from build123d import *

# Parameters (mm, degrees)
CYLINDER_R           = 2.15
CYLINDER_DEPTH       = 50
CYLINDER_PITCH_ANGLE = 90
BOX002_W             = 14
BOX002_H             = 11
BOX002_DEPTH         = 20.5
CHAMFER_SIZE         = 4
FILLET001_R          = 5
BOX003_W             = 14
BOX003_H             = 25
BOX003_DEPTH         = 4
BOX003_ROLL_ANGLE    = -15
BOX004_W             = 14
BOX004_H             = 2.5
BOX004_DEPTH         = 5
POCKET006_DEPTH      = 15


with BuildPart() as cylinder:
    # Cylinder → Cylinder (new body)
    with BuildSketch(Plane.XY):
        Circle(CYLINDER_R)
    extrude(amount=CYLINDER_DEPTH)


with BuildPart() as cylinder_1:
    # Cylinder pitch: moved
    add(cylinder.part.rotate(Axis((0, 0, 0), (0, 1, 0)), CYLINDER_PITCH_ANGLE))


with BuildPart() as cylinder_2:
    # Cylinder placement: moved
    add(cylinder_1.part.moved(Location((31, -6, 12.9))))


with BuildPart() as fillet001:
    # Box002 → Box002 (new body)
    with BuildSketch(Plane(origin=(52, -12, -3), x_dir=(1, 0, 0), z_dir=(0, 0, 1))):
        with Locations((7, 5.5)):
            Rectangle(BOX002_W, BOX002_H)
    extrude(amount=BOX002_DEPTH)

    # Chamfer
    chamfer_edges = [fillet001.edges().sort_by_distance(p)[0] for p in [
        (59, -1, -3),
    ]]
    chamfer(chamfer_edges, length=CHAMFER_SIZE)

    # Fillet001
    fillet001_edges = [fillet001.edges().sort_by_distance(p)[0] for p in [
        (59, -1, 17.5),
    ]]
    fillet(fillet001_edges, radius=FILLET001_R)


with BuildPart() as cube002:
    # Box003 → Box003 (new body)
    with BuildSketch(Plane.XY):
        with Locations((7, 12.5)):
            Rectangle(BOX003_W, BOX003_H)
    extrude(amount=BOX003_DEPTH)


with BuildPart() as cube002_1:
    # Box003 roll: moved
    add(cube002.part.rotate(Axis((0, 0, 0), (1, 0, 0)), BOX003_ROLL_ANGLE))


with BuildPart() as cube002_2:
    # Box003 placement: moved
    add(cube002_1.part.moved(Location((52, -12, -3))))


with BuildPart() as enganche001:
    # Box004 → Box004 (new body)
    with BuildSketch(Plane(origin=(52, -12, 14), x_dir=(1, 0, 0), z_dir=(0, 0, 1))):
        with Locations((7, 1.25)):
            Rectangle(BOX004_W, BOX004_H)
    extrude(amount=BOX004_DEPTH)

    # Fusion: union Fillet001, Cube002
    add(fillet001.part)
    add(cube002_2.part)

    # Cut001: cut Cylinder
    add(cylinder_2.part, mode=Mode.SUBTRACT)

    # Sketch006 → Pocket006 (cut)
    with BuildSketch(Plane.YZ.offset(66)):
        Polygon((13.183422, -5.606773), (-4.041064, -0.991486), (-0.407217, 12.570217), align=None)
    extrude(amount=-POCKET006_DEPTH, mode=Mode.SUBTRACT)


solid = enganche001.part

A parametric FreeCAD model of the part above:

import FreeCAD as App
import Part
import Sketcher
Q = App.Units.Quantity


def edges_at(feature, points):
    """Names of the edges that pass closest to the given points."""
    edges = feature.Shape.Edges
    near = lambda p: min(range(len(edges)), key=lambda i: edges[i].distToShape(Part.Vertex(*p))[0])
    return sorted({f"Edge{near(p) + 1}" for p in points})


def add_polygon(sketch, points):
    """Adds a closed chain of lines whose ends are joined by coincident constraints."""
    first, n = sketch.GeometryCount, len(points)
    for a, b in zip(points, points[1:] + points[:1]):
        sketch.addGeometry(Part.LineSegment(App.Vector(*a, 0), App.Vector(*b, 0)), False)
    for i in range(n):
        sketch.addConstraint(Sketcher.Constraint("Coincident", first + i, 2, first + (i + 1) % n, 1))

doc = App.newDocument("Part")
body = doc.addObject("PartDesign::Body", "Body")

# Sketch on XY plane
sketch1 = body.newObject("Sketcher::SketchObject", "Sketch")
sketch1.AttachmentSupport = (doc.getObject("XY_Plane"), [""])
sketch1.MapMode = "FlatFace"
sketch1.addGeometry(Part.Circle(App.Vector(0, 0, 0), App.Vector(0, 0, 1), 2.1), False)
sketch1.addConstraint(Sketcher.Constraint("Coincident", 0, 3, -1, 1))
sketch1.addConstraint(Sketcher.Constraint("Diameter", 0, 4.3))
pad1 = body.newObject("PartDesign::Pad", "Pad")
pad1.Profile = sketch1
pad1.Length = 50
body2 = doc.addObject("PartDesign::Body", "Body001")
doc.recompute()

body.Placement = App.Placement(App.Vector(0, 0, 0), App.Rotation(App.Vector(0, 1, 0), 90))
boolean = body2.newObject("PartDesign::Boolean", "Boolean")
boolean.Type = "Fuse"
boolean.addObjects([body])
body3 = doc.addObject("PartDesign::Body", "Body002")
doc.recompute()

body2.Placement = App.Placement(App.Vector(31, -6, 12.9), App.Rotation(App.Vector(0, 0, 1), 0))
boolean2 = body3.newObject("PartDesign::Boolean", "Boolean001")
boolean2.Type = "Fuse"
boolean2.addObjects([body2])
body4 = doc.addObject("PartDesign::Body", "Body003")

# Sketch on XY plane
sketch2 = body4.newObject("Sketcher::SketchObject", "Sketch001")
sketch2.AttachmentSupport = (doc.getObject("XY_Plane003"), [""])
sketch2.MapMode = "FlatFace"
sketch2.AttachmentOffset = App.Placement(App.Vector(0, 0, -3), App.Rotation())
add_polygon(sketch2, [(52, -1), (52, -12), (66, -12), (66, -1)])  # lines 0-3
sketch2.addConstraint(Sketcher.Constraint("Vertical", 0))
sketch2.addConstraint(Sketcher.Constraint("Horizontal", 1))
sketch2.addConstraint(Sketcher.Constraint("Vertical", 2))
sketch2.addConstraint(Sketcher.Constraint("Horizontal", 3))
sketch2.addConstraint(Sketcher.Constraint("DistanceX", 1, 1, 1, 2, 14.0))
sketch2.addConstraint(Sketcher.Constraint("DistanceY", 0, 2, 0, 1, 11.0))
sketch2.addConstraint(Sketcher.Constraint("DistanceX", -1, 1, 0, 2, 52.0))
sketch2.addConstraint(Sketcher.Constraint("DistanceY", 0, 2, -1, 1, 12.0))
pad2 = body4.newObject("PartDesign::Pad", "Pad001")
pad2.Profile = sketch2
pad2.Length = 20.5
doc.recompute()

chamfer = body4.newObject("PartDesign::Chamfer", "Chamfer")
chamfer.Base = (pad2, edges_at(pad2, [(59, -1, -3)]))
chamfer.Size = 4
doc.recompute()

fillet = body4.newObject("PartDesign::Fillet", "Fillet")
fillet.Base = (chamfer, edges_at(chamfer, [(59, -1, 17.5)]))
fillet.Radius = 5
body5 = doc.addObject("PartDesign::Body", "Body004")

# Sketch on XY plane
sketch3 = body5.newObject("Sketcher::SketchObject", "Sketch002")
sketch3.AttachmentSupport = (doc.getObject("XY_Plane004"), [""])
sketch3.MapMode = "FlatFace"
add_polygon(sketch3, [(0, 25), (0, 0), (14, 0), (14, 25)])  # lines 0-3
sketch3.addConstraint(Sketcher.Constraint("Vertical", 0))
sketch3.addConstraint(Sketcher.Constraint("Horizontal", 1))
sketch3.addConstraint(Sketcher.Constraint("Vertical", 2))
sketch3.addConstraint(Sketcher.Constraint("Horizontal", 3))
sketch3.addConstraint(Sketcher.Constraint("Coincident", 0, 2, -1, 1))
sketch3.addConstraint(Sketcher.Constraint("DistanceX", 1, 1, 1, 2, 14.0))
sketch3.addConstraint(Sketcher.Constraint("DistanceY", 0, 2, 0, 1, 25.0))
pad3 = body5.newObject("PartDesign::Pad", "Pad002")
pad3.Profile = sketch3
pad3.Length = 4
body6 = doc.addObject("PartDesign::Body", "Body005")
doc.recompute()

body5.Placement = App.Placement(App.Vector(0, 0, 0), App.Rotation(App.Vector(1, 0, 0), 345))
boolean3 = body6.newObject("PartDesign::Boolean", "Boolean002")
boolean3.Type = "Fuse"
boolean3.addObjects([body5])
body7 = doc.addObject("PartDesign::Body", "Body006")
doc.recompute()

body6.Placement = App.Placement(App.Vector(52, -12, -3), App.Rotation(App.Vector(0, 0, 1), 0))
boolean4 = body7.newObject("PartDesign::Boolean", "Boolean003")
boolean4.Type = "Fuse"
boolean4.addObjects([body6])
body8 = doc.addObject("PartDesign::Body", "Body007")

# Sketch on XY plane
sketch4 = body8.newObject("Sketcher::SketchObject", "Sketch003")
sketch4.AttachmentSupport = (doc.getObject("XY_Plane007"), [""])
sketch4.MapMode = "FlatFace"
sketch4.AttachmentOffset = App.Placement(App.Vector(0, 0, 14), App.Rotation())
add_polygon(sketch4, [(52, -9.5), (52, -12), (66, -12), (66, -9.5)])  # lines 0-3
sketch4.addConstraint(Sketcher.Constraint("Vertical", 0))
sketch4.addConstraint(Sketcher.Constraint("Horizontal", 1))
sketch4.addConstraint(Sketcher.Constraint("Vertical", 2))
sketch4.addConstraint(Sketcher.Constraint("Horizontal", 3))
sketch4.addConstraint(Sketcher.Constraint("DistanceX", 1, 1, 1, 2, 14.0))
sketch4.addConstraint(Sketcher.Constraint("DistanceY", 0, 2, 0, 1, 2.5))
sketch4.addConstraint(Sketcher.Constraint("DistanceX", -1, 1, 0, 2, 52.0))
sketch4.addConstraint(Sketcher.Constraint("DistanceY", 0, 2, -1, 1, 12.0))
pad4 = body8.newObject("PartDesign::Pad", "Pad003")
pad4.Profile = sketch4
pad4.Length = 5
doc.recompute()

boolean5 = body8.newObject("PartDesign::Boolean", "Boolean004")
boolean5.Type = "Fuse"
boolean5.addObjects([body4])
doc.recompute()

boolean6 = body8.newObject("PartDesign::Boolean", "Boolean005")
boolean6.Type = "Fuse"
boolean6.addObjects([body7])
doc.recompute()

boolean7 = body8.newObject("PartDesign::Boolean", "Boolean006")
boolean7.Type = "Cut"
boolean7.addObjects([body3])

# Sketch on YZ plane
sketch5 = body8.newObject("Sketcher::SketchObject", "Sketch004")
sketch5.AttachmentSupport = (doc.getObject("YZ_Plane007"), [""])
sketch5.MapMode = "FlatFace"
sketch5.AttachmentOffset = App.Placement(App.Vector(0, 0, 66), App.Rotation())
add_polygon(sketch5, [(-4, -1), (13, -6), (0, 13)])  # lines 0-2
sketch5.addConstraint(Sketcher.Constraint("Perpendicular", 0, 2))
sketch5.addConstraint(Sketcher.Constraint("Angle", 0, Q("-15 deg")))
sketch5.addConstraint(Sketcher.Constraint("Distance", 1, 22.696))
sketch5.addConstraint(Sketcher.Constraint("Distance", 0, 17.8321))
sketch5.addConstraint(Sketcher.Constraint("DistanceX", -1, 1, 0, 2, 13.183422))
sketch5.addConstraint(Sketcher.Constraint("DistanceY", 0, 2, -1, 1, 5.606773))
pocket1 = body8.newObject("PartDesign::Pocket", "Pocket")
pocket1.Profile = sketch5
pocket1.Length = 15

doc.recompute()
